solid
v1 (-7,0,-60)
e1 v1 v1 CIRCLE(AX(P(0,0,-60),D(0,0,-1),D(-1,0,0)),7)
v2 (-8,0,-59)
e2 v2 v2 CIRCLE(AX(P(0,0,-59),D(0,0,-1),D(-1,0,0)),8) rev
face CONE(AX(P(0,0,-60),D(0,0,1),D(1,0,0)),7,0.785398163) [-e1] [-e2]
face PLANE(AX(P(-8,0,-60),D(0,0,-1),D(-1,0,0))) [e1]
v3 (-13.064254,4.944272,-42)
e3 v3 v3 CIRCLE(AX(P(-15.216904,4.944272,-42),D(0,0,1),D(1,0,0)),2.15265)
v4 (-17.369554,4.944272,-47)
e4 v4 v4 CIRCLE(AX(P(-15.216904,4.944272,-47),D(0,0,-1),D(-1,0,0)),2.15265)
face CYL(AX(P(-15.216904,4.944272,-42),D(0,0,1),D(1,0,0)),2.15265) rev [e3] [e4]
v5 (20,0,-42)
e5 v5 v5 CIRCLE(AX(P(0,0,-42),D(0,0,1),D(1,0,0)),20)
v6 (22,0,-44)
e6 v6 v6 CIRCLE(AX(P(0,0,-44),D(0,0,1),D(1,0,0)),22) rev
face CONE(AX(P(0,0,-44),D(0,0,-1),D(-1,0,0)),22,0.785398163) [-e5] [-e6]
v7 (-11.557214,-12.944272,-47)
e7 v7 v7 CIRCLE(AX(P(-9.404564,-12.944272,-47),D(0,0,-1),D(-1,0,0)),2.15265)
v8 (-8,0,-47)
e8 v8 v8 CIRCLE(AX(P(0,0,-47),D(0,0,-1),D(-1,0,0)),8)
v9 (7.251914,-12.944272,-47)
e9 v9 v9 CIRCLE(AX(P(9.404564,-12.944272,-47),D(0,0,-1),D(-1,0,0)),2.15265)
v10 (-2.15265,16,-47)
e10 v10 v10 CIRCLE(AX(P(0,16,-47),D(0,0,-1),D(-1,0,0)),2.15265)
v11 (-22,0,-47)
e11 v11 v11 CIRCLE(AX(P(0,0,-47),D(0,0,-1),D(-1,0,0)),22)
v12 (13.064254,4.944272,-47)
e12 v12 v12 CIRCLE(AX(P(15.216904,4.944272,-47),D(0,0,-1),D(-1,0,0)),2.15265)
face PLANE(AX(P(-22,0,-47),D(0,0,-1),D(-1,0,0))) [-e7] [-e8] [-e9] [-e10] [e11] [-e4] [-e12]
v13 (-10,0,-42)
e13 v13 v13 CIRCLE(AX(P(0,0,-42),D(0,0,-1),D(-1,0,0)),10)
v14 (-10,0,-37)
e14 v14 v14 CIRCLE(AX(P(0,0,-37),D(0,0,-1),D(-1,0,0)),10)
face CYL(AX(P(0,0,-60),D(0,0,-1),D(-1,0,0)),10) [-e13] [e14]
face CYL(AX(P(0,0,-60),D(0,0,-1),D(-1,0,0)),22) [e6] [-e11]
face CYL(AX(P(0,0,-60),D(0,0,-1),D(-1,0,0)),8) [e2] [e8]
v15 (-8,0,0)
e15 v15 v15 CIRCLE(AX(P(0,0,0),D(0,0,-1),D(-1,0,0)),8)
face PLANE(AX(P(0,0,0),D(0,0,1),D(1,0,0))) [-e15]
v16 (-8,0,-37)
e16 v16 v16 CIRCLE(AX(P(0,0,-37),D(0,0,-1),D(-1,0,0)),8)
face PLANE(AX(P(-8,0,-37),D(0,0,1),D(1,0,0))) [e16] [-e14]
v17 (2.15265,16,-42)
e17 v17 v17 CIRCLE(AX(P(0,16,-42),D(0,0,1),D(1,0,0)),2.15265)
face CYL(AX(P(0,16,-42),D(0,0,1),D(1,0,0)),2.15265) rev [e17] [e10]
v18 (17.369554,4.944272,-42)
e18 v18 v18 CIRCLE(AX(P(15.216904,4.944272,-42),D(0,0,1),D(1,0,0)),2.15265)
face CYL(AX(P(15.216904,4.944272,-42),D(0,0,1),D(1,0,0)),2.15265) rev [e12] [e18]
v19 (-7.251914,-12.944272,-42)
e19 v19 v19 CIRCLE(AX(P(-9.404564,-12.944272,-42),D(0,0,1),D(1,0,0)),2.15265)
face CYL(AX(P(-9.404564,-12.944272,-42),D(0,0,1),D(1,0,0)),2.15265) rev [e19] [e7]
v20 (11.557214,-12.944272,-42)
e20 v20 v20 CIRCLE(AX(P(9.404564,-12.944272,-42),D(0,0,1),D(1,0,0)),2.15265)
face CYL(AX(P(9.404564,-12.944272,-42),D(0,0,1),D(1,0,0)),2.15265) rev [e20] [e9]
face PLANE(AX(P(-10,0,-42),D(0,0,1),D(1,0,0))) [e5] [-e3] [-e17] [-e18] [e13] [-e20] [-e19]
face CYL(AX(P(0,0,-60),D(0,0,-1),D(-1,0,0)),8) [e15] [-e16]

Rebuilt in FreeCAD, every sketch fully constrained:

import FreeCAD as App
import Part
import Sketcher

V = App.Vector


def edges_at(feature, points):
    """Names of the edges that pass closest to the given points."""
    edges = feature.Shape.Edges
    near = lambda p: min(range(len(edges)), key=lambda i: edges[i].distToShape(Part.Vertex(*p))[0])
    return sorted({f"Edge{near(p) + 1}" for p in points})


def add_polygon(sketch, points):
    """Adds a closed chain of lines whose ends are joined by coincident constraints."""
    first, n = sketch.GeometryCount, len(points)
    for a, b in zip(points, points[1:] + points[:1]):
        sketch.addGeometry(Part.LineSegment(App.Vector(*a, 0), App.Vector(*b, 0)), False)
    for i in range(n):
        sketch.addConstraint(Sketcher.Constraint("Coincident", first + i, 2, first + (i + 1) % n, 1))

doc = App.newDocument("Part")
params = doc.addObject("Spreadsheet::Sheet", "Params")
for row, (alias, value) in enumerate([
    ("sketch1_width", "8 mm"),
    ("sketch1_width2", "14 mm"),
    ("sketch1_width3", "12 mm"),
    ("sketch1_height", "60 mm"),
    ("sketch1_height2", "13 mm"),
    ("revolution_angle", "360 deg"),
    ("chamfer_size", "2 mm"),
    ("hole_diameter", "4.3053 mm"),
    ("hole_depth", "12 mm"),
    ("chamfer2_size", "1 mm"),
], start=1):
    params.set(f"A{row}", alias)
    params.set(f"B{row}", "=" + value)
    params.setAlias(f"B{row}", alias)

body = doc.addObject("PartDesign::Body", "Body")

sketch1 = doc.addObject("Sketcher::SketchObject", "Sketch")
body.addObject(sketch1)
sketch1.AttachmentSupport = (doc.XZ_Plane, [""])
sketch1.MapMode = "FlatFace"
add_polygon(sketch1, [(-8, 0), (0, 0), (0, -60), (-8, -60), (-8, -47), (-22, -47), (-22, -42), (-10, -42), (-10, -37), (-8, -37)])
sketch1.addConstraint([
    Sketcher.Constraint("Horizontal", 0),
    Sketcher.Constraint("Vertical", 1),
    Sketcher.Constraint("Horizontal", 2),
    Sketcher.Constraint("Vertical", 3),
    Sketcher.Constraint("Horizontal", 4),
    Sketcher.Constraint("Vertical", 5),
    Sketcher.Constraint("Horizontal", 6),
    Sketcher.Constraint("Vertical", 7),
    Sketcher.Constraint("Horizontal", 8),
    Sketcher.Constraint("Vertical", 9),
    Sketcher.Constraint("Coincident", 0, 2, -1, 1),
    Sketcher.Constraint("Vertical", 3, 2, 8, 2),
    Sketcher.Constraint("Equal", 5, 7),
    Sketcher.Constraint("DistanceX", 0, 1, 0, 2, 8.0),
    Sketcher.Constraint("DistanceX", 4, 2, 4, 1, 14.0),
    Sketcher.Constraint("DistanceX", 6, 1, 6, 2, 12.0),
    Sketcher.Constraint("DistanceY", 1, 2, 1, 1, 60.0),
    Sketcher.Constraint("DistanceY", 3, 1, 3, 2, 13.0),
    Sketcher.Constraint("DistanceY", 5, 1, 5, 2, 5.0),
])
sketch1.setExpression("Constraints[23]", "Params.sketch1_width")
sketch1.setExpression("Constraints[24]", "Params.sketch1_width2")
sketch1.setExpression("Constraints[25]", "Params.sketch1_width3")
sketch1.setExpression("Constraints[26]", "Params.sketch1_height")
sketch1.setExpression("Constraints[27]", "Params.sketch1_height2")
revolution = doc.addObject("PartDesign::Revolution", "Revolution")
body.addObject(revolution)
revolution.Profile = sketch1
revolution.ReferenceAxis = (sketch1, ["V_Axis"])
revolution.setExpression("Angle", "Params.revolution_angle")
doc.recompute()

chamfer = doc.addObject("PartDesign::Chamfer", "Chamfer")
body.addObject(chamfer)
chamfer.Base = (revolution, edges_at(revolution, [(22, 0, -42)]))
chamfer.setExpression("Size", "Params.chamfer_size")

sketch2 = doc.addObject("Sketcher::SketchObject", "Sketch001")
body.addObject(sketch2)
sketch2.AttachmentSupport = (doc.XY_Plane, [""])
sketch2.MapMode = "FlatFace"
sketch2.AttachmentOffset = App.Placement(V(0, 0, -42), App.Rotation())
sketch2.addGeometry([
    Part.Circle(V(0, 16, 0), V(0, 0, 1), 2.2),
    Part.Circle(V(15.2, 4.9, 0), V(0, 0, 1), 2.2),
    Part.Circle(V(9.4, -12.9, 0), V(0, 0, 1), 2.2),
    Part.Circle(V(-9.4, -12.9, 0), V(0, 0, 1), 2.2),
    Part.Circle(V(-15.2, 4.9, 0), V(0, 0, 1), 2.2),
], False)
sketch2.addConstraint([
    Sketcher.Constraint("Equal", 0, 1),
    Sketcher.Constraint("Equal", 1, 2),
    Sketcher.Constraint("Equal", 2, 3),
    Sketcher.Constraint("Equal", 3, 4),
    Sketcher.Constraint("Symmetric", 2, 3, 3, 3, -2),
    Sketcher.Constraint("Symmetric", 1, 3, 4, 3, -2),
    Sketcher.Constraint("PointOnObject", 0, 3, -2),
    Sketcher.Constraint("DistanceY", -1, 1, 0, 3, 16.0),
    Sketcher.Constraint("Diameter", 0, 4.3053),
    Sketcher.Constraint("DistanceY", -1, 1, 1, 3, 4.944272),
    Sketcher.Constraint("DistanceY", 2, 3, -1, 1, 12.944272),
    Sketcher.Constraint("DistanceX", 2, 3, 1, 3, 5.81234),
    Sketcher.Constraint("DistanceX", 3, 3, 2, 3, 18.809128),
])
doc.recompute()
hole = doc.addObject("PartDesign::Hole", "Hole")
body.addObject(hole)
hole.Profile = sketch2
hole.ThreadType = "None"
hole.setExpression("Diameter", "Params.hole_diameter")
hole.DepthType = "Dimension"
hole.setExpression("Depth", "Params.hole_depth")
hole.DrillPoint = "Angled"
hole.DrillPointAngle = 118
doc.recompute()

chamfer2 = doc.addObject("PartDesign::Chamfer", "Chamfer001")
body.addObject(chamfer2)
chamfer2.Base = (hole, edges_at(hole, [(8, 0, -60)]))
chamfer2.setExpression("Size", "Params.chamfer2_size")

doc.recompute()
